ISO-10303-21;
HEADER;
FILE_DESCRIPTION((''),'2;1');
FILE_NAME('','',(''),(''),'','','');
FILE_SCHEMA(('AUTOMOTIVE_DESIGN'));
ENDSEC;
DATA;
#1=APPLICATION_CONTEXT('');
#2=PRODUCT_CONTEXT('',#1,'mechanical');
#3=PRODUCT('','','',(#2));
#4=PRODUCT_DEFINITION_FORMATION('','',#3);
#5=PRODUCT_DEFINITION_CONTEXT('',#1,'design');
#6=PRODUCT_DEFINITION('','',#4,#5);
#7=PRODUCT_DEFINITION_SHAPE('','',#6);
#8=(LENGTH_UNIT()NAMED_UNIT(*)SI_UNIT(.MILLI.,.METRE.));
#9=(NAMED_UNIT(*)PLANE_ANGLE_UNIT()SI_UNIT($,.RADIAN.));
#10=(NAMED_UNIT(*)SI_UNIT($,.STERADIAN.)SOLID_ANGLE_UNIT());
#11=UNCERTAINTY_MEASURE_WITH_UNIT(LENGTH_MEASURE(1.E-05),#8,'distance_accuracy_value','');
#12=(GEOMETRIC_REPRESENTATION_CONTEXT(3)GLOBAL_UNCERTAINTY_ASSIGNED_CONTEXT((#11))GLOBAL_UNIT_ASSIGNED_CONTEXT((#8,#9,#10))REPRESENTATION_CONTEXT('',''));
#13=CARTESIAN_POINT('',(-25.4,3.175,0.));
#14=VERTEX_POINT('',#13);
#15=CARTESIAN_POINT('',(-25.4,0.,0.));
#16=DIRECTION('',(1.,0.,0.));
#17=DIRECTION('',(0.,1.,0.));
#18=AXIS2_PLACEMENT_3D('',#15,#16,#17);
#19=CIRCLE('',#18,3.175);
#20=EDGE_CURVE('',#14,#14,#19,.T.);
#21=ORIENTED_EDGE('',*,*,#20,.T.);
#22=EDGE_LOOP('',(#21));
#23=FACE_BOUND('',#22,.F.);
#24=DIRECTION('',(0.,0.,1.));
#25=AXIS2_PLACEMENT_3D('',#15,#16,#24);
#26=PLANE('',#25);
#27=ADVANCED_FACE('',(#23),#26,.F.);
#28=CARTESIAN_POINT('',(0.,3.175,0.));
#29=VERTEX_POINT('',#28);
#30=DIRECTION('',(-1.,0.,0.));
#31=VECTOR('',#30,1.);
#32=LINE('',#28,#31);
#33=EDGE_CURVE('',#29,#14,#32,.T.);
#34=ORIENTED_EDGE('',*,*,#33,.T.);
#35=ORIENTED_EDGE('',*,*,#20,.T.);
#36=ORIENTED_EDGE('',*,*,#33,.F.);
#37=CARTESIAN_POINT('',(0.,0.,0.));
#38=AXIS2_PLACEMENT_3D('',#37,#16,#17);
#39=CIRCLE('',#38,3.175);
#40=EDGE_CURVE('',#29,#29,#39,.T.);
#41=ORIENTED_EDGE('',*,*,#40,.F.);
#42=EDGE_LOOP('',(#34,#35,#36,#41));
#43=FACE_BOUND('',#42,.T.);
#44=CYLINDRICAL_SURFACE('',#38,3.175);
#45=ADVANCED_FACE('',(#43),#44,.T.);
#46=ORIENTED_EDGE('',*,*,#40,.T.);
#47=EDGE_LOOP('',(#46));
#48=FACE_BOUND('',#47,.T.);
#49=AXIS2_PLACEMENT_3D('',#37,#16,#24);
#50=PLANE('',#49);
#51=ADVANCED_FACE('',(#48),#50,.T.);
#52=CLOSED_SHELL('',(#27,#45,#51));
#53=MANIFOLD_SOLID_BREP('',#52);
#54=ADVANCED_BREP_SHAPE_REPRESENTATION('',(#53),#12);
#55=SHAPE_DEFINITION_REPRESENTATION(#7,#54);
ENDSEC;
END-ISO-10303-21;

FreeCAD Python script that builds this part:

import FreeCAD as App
import Part
import Sketcher

V = App.Vector
Q = App.Units.Quantity

doc = App.newDocument("Part")
body = doc.addObject("PartDesign::Body", "Body")

# Sketch on YZ plane
sketch1 = body.newObject("Sketcher::SketchObject", "Sketch")
sketch1.AttachmentSupport = (doc.getObject("YZ_Plane"), [""])
sketch1.MapMode = "FlatFace"
sketch1.addGeometry(Part.Circle(V(0, 0, 0), V(0, 0, 1), 3.175), False)
sketch1.addConstraint([
    Sketcher.Constraint("Coincident", 0, 3, -1, 1),
    Sketcher.Constraint("Diameter", 0, Q("0.25 in")),
])
pad1 = body.newObject("PartDesign::Pad", "Pad")
pad1.Profile = sketch1
pad1.Length = Q("1 in")
pad1.Reversed = True

doc.recompute()
